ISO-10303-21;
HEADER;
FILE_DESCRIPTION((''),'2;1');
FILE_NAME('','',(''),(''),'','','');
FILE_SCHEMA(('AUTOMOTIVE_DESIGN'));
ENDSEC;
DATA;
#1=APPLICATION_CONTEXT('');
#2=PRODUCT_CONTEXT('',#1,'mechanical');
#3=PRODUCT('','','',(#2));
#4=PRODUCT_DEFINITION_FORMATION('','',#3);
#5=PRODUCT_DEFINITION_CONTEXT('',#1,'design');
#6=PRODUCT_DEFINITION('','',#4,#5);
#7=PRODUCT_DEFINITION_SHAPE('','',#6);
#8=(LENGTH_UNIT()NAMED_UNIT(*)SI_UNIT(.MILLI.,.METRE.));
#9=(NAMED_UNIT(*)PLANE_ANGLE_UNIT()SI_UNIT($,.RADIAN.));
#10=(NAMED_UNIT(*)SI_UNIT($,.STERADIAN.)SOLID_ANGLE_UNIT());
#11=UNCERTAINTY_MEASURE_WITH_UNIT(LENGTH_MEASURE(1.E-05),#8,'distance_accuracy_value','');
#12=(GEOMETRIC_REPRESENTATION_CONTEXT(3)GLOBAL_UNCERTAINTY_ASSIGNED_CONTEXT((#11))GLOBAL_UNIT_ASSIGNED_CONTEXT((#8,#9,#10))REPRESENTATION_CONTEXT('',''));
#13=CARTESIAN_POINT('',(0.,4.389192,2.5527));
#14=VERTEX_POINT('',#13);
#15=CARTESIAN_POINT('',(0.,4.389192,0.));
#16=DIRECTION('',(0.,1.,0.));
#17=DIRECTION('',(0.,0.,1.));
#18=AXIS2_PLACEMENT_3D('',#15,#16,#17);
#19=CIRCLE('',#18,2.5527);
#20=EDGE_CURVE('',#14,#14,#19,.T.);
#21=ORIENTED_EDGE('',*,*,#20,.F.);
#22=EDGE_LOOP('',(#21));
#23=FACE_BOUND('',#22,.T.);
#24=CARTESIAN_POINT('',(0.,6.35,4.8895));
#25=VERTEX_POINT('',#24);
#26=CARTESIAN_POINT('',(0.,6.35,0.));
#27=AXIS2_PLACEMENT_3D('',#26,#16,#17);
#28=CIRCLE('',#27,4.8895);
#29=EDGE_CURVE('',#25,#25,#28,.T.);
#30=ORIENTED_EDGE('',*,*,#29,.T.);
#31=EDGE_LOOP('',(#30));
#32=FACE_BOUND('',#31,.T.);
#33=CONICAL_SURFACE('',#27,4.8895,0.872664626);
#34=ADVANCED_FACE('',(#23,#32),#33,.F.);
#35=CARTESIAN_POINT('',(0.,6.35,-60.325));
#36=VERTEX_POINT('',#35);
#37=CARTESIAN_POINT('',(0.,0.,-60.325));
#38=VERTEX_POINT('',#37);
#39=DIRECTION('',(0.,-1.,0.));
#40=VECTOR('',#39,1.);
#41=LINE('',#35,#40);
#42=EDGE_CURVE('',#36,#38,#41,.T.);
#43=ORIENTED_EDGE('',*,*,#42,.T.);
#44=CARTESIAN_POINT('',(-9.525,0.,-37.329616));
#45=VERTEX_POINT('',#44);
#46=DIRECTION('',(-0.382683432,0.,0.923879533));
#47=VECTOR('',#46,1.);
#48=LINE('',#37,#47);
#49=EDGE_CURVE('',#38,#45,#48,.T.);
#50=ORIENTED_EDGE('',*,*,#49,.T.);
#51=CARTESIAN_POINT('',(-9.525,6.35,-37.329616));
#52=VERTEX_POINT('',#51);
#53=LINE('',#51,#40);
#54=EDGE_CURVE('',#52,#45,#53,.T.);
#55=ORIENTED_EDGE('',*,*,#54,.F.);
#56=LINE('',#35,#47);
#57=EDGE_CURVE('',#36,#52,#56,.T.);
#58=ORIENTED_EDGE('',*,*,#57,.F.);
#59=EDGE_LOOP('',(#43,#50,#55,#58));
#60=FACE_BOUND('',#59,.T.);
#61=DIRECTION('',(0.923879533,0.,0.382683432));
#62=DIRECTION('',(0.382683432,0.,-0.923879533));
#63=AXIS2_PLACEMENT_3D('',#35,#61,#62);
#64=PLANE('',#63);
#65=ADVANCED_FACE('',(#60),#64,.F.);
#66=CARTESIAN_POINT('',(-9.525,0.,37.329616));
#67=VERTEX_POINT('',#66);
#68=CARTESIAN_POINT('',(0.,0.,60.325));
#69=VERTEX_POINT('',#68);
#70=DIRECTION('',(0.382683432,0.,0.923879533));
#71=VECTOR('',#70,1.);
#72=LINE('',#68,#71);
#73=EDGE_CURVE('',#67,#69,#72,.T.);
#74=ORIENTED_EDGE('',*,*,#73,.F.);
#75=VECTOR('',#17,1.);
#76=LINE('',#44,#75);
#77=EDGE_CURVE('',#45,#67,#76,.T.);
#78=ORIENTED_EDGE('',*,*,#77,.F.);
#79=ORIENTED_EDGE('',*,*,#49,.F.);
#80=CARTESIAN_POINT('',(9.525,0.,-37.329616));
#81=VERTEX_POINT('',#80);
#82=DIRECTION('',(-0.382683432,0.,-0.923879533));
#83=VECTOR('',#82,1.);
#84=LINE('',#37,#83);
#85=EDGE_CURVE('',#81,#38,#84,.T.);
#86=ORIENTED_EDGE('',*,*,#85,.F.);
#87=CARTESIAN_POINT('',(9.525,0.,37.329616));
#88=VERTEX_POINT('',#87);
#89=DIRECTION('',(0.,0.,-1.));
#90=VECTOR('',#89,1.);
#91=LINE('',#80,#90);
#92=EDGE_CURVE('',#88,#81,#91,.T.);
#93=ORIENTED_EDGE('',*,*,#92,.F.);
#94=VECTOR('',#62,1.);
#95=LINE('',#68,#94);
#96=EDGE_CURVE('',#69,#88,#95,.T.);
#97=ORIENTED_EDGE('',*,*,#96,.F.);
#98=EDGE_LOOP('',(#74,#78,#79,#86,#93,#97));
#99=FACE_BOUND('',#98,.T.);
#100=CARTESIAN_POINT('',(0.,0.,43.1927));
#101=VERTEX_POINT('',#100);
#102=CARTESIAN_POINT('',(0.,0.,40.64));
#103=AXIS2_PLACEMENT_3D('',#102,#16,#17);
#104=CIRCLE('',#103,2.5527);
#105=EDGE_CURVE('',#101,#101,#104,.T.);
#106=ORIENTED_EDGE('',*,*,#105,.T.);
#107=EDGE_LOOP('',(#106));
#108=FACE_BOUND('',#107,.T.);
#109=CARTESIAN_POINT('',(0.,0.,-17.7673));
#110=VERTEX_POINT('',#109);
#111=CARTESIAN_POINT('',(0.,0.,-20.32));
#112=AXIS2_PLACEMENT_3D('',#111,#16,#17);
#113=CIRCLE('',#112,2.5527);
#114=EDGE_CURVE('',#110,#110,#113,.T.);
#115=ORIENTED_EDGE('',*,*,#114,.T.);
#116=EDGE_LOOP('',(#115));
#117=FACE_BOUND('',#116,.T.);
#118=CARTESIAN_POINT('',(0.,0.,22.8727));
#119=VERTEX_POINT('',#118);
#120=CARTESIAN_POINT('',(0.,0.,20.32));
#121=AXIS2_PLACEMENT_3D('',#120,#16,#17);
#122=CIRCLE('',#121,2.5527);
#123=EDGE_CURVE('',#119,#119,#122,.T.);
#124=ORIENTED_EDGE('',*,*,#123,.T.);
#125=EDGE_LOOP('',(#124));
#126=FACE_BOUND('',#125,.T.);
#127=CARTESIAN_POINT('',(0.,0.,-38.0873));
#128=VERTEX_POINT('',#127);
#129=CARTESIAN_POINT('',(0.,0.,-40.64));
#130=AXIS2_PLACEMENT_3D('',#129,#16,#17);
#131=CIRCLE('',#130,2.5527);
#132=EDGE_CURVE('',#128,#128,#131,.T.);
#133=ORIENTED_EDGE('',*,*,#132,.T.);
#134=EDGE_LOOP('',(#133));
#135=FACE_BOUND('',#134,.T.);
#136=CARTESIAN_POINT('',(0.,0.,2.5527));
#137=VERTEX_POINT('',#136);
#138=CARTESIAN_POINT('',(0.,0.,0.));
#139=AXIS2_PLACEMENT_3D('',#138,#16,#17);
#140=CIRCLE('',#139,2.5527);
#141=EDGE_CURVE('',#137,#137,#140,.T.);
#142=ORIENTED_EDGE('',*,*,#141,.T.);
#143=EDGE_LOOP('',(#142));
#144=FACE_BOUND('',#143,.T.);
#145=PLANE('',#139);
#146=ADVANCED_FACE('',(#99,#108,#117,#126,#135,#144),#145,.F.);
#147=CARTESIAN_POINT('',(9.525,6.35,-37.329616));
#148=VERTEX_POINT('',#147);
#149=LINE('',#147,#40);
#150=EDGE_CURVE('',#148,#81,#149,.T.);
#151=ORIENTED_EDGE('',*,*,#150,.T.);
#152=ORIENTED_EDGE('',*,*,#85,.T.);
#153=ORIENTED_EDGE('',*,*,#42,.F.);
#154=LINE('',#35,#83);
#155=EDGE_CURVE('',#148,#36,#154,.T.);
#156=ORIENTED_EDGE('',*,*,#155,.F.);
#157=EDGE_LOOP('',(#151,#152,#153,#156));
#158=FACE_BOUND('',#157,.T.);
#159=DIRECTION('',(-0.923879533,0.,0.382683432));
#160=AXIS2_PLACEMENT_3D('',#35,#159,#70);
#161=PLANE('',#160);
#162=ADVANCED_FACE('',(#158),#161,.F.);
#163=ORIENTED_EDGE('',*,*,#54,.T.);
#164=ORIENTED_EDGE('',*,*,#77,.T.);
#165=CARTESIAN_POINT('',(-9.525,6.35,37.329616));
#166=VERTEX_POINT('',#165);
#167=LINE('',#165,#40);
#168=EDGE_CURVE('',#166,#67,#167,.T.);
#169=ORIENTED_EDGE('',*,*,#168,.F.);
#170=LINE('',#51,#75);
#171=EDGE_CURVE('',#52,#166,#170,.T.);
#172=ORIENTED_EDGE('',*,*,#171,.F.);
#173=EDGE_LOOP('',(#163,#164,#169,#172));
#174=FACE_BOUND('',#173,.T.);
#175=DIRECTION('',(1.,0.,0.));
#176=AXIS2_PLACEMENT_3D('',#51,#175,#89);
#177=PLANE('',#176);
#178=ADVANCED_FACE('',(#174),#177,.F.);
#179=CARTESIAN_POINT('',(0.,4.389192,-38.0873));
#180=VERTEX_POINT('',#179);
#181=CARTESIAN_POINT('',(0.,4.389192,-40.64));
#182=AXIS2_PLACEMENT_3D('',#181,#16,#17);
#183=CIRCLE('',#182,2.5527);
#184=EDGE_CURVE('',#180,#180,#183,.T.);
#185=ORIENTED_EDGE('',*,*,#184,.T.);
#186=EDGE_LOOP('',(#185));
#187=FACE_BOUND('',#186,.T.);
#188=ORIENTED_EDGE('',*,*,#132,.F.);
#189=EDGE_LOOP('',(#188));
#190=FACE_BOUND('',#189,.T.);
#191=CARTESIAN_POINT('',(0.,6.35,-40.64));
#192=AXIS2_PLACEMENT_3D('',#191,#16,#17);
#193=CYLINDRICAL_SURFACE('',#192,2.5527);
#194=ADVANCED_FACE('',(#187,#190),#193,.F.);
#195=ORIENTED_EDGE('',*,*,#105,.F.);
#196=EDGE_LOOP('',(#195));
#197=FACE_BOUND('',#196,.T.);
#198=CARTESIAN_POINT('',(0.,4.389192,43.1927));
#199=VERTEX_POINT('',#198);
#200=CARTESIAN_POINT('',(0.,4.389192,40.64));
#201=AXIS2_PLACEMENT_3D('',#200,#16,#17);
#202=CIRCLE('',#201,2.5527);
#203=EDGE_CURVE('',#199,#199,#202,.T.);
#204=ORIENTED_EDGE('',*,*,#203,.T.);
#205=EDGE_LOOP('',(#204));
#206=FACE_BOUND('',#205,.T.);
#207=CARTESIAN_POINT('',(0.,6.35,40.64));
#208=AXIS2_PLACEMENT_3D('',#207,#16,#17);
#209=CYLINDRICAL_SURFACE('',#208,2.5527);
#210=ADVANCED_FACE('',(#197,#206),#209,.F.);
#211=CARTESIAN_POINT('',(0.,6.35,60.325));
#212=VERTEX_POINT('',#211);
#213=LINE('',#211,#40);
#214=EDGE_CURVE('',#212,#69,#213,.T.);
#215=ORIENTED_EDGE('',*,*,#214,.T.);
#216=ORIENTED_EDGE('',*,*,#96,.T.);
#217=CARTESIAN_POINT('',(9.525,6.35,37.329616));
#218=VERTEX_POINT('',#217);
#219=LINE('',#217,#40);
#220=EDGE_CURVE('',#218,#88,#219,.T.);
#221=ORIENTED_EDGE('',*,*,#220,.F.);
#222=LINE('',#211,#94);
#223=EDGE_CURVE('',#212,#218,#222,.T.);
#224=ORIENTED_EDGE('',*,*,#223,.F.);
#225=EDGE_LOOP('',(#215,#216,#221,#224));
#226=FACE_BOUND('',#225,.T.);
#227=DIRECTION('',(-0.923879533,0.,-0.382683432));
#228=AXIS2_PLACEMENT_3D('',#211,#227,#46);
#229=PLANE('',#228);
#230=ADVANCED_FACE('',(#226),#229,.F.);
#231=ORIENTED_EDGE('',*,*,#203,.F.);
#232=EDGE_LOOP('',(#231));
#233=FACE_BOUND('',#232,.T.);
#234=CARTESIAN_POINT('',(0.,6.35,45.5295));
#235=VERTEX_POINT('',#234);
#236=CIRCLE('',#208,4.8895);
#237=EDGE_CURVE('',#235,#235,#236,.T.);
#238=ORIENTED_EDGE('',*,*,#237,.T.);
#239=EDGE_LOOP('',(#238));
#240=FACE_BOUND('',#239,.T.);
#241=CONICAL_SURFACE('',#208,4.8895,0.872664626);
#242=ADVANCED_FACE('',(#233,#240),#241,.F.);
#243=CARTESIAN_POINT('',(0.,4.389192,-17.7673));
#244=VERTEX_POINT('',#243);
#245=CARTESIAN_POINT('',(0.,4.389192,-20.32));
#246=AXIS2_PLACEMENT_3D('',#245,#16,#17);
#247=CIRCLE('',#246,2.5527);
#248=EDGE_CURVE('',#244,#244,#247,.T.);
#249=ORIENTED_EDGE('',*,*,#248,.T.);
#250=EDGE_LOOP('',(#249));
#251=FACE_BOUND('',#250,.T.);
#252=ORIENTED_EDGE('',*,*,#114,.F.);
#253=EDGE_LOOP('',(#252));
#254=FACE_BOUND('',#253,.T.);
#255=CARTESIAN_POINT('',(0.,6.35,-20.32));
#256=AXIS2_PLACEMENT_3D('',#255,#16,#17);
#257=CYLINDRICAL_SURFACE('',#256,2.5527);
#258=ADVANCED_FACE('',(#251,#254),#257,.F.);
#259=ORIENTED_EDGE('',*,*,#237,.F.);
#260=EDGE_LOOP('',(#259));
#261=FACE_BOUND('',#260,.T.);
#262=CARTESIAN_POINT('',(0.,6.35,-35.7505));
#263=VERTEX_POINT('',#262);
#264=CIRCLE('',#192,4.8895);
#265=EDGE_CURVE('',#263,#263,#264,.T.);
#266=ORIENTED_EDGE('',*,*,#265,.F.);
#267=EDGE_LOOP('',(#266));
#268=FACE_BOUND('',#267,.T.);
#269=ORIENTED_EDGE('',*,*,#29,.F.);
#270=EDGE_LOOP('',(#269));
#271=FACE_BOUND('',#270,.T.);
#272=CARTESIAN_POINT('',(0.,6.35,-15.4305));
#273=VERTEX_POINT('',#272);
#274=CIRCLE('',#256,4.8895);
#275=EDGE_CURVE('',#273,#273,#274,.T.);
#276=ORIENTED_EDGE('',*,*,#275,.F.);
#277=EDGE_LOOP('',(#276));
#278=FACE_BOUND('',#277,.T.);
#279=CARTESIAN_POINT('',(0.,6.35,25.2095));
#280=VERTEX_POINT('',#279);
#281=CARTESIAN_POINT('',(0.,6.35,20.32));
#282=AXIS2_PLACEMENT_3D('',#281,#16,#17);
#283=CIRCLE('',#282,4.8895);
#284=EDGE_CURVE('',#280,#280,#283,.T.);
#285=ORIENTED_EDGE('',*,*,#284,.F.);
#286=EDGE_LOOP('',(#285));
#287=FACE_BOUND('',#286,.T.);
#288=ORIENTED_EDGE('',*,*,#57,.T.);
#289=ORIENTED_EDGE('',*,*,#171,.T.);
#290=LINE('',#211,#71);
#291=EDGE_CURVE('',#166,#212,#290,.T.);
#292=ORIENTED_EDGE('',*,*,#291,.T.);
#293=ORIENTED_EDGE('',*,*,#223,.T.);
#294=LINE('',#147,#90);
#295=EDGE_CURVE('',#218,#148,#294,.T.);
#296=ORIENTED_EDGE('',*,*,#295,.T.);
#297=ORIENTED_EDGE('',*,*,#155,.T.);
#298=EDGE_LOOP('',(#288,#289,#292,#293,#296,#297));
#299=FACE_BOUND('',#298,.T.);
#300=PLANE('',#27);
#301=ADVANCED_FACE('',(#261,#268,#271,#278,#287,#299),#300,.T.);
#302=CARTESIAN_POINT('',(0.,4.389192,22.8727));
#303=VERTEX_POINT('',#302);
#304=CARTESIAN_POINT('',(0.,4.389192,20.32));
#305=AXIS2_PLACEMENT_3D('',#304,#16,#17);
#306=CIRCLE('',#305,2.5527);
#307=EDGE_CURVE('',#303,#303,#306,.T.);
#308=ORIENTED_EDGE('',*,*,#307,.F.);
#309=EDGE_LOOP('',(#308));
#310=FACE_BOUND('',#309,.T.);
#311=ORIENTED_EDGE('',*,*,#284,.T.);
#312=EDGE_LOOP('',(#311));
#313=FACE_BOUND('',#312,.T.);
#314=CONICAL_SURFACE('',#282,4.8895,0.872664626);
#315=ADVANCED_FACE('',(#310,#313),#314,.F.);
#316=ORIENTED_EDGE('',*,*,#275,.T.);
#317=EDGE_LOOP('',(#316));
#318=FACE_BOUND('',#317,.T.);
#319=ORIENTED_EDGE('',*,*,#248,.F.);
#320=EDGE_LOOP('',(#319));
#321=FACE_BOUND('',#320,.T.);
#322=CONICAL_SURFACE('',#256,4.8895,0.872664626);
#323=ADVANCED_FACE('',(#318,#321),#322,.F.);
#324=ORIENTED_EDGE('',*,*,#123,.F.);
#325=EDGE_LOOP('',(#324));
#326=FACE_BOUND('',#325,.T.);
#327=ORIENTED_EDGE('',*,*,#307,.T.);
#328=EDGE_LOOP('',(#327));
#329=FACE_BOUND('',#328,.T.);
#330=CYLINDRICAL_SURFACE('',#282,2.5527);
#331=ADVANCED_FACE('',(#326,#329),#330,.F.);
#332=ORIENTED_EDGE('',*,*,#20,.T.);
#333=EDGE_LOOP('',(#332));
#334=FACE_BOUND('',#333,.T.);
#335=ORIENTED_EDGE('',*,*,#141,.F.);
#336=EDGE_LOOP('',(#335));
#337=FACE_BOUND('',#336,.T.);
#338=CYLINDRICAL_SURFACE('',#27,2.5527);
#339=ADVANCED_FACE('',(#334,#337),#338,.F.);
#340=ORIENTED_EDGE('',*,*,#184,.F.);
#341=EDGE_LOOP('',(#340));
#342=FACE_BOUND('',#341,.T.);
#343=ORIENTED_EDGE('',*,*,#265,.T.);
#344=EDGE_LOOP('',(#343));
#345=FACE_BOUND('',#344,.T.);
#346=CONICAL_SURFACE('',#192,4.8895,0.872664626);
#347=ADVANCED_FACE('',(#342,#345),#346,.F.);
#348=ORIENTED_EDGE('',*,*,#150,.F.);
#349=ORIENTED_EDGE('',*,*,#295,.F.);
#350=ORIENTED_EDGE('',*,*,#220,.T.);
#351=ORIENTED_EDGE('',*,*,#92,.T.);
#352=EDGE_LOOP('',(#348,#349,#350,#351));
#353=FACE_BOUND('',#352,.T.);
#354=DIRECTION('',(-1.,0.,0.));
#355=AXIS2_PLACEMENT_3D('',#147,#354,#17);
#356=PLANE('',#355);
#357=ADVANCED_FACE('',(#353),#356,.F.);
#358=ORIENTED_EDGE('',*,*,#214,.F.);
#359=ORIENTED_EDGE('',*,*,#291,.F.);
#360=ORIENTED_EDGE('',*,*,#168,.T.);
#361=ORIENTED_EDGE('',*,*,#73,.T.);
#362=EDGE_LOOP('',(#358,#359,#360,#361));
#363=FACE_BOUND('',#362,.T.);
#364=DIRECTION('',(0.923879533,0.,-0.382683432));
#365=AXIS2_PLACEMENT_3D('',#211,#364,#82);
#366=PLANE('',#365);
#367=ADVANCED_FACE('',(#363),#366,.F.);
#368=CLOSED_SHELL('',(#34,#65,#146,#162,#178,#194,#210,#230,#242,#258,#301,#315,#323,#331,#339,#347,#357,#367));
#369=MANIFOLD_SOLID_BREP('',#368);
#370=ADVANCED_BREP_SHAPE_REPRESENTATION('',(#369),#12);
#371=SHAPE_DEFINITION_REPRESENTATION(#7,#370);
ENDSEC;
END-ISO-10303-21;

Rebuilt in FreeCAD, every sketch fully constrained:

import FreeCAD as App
import Part
import Sketcher

V = App.Vector
Q = App.Units.Quantity

doc = App.newDocument("Part")
body = doc.addObject("PartDesign::Body", "Body")

sketch1 = body.newObject("Sketcher::SketchObject", "Sketch")
sketch1.AttachmentSupport = (doc.getObject("XZ_Plane"), [""])
sketch1.MapMode = "FlatFace"
sketch1.addGeometry([
    Part.LineSegment(V(0, -60, 0), V(-10, -37, 0)),
    Part.LineSegment(V(-10, -37, 0), V(-10, 37, 0)),
    Part.LineSegment(V(-10, 37, 0), V(0, 60, 0)),
    Part.LineSegment(V(0, 60, 0), V(10, 37, 0)),
    Part.LineSegment(V(10, 37, 0), V(10, -37, 0)),
    Part.LineSegment(V(10, -37, 0), V(0, -60, 0)),
], False)
sketch1.addConstraint([
    Sketcher.Constraint("Coincident", 0, 2, 1, 1),
    Sketcher.Constraint("Coincident", 1, 2, 2, 1),
    Sketcher.Constraint("Coincident", 2, 2, 3, 1),
    Sketcher.Constraint("Coincident", 3, 2, 4, 1),
    Sketcher.Constraint("Coincident", 4, 2, 5, 1),
    Sketcher.Constraint("Coincident", 5, 2, 0, 1),
    Sketcher.Constraint("Vertical", 1),
    Sketcher.Constraint("Vertical", 4),
    Sketcher.Constraint("Symmetric", 0, 2, 3, 2, -1, 1),
    Sketcher.Constraint("Symmetric", 2, 2, 5, 2, -1, 1),
    Sketcher.Constraint("PointOnObject", 2, 2, -2),
    Sketcher.Constraint("Parallel", 2, 5),
    Sketcher.Constraint("Horizontal", 1, 2, 3, 2),
    Sketcher.Constraint("Angle", 0, Q("112.5 deg")),
    Sketcher.Constraint("DistanceX", 1, 2, 3, 2, Q("0.75 in")),
    Sketcher.Constraint("DistanceY", 5, 2, 2, 2, Q("4.75 in")),
])
pad1 = body.newObject("PartDesign::Pad", "Pad")
pad1.Profile = sketch1
pad1.Length = Q("0.25 in")
pad1.Reversed = True

sketch2 = body.newObject("Sketcher::SketchObject", "Sketch001")
sketch2.AttachmentSupport = (doc.getObject("XZ_Plane"), [""])
sketch2.MapMode = "FlatFace"
sketch2.AttachmentOffset = App.Placement(V(0, 0, -0.25 * 25.4), App.Rotation())
sketch2.addGeometry([
    Part.Circle(V(0, -20.3, 0), V(0, 0, 1), 2.6),
    Part.Circle(V(0, -40.6, 0), V(0, 0, 1), 2.6),
    Part.Circle(V(0, 0, 0), V(0, 0, 1), 2.6),
    Part.Circle(V(0, 20.3, 0), V(0, 0, 1), 2.6),
    Part.Circle(V(0, 40.6, 0), V(0, 0, 1), 2.6),
], False)
sketch2.addConstraint([
    Sketcher.Constraint("Coincident", 2, 3, -1, 1),
    Sketcher.Constraint("Equal", 0, 1),
    Sketcher.Constraint("Equal", 1, 2),
    Sketcher.Constraint("Equal", 2, 3),
    Sketcher.Constraint("Equal", 3, 4),
    Sketcher.Constraint("Symmetric", 0, 3, 3, 3, -1, 1),
    Sketcher.Constraint("Symmetric", 1, 3, 4, 3, -1, 1),
    Sketcher.Constraint("PointOnObject", 0, 3, -2),
    Sketcher.Constraint("PointOnObject", 1, 3, -2),
    Sketcher.Constraint("Diameter", 0, Q("0.201 in")),
    Sketcher.Constraint("DistanceY", 0, 3, -1, 1, Q("0.8 in")),
    Sketcher.Constraint("DistanceY", 1, 3, -1, 1, Q("1.6 in")),
])
doc.recompute()
hole = body.newObject("PartDesign::Hole", "Hole")
hole.Profile = sketch2
hole.ThreadType = "None"
hole.Diameter = Q("0.201 in")
hole.DepthType = "ThroughAll"
hole.HoleCutType = "Countersink"
hole.HoleCutDiameter = Q("0.385 in")
hole.HoleCutCountersinkAngle = 100
hole.Reversed = True

doc.recompute()
